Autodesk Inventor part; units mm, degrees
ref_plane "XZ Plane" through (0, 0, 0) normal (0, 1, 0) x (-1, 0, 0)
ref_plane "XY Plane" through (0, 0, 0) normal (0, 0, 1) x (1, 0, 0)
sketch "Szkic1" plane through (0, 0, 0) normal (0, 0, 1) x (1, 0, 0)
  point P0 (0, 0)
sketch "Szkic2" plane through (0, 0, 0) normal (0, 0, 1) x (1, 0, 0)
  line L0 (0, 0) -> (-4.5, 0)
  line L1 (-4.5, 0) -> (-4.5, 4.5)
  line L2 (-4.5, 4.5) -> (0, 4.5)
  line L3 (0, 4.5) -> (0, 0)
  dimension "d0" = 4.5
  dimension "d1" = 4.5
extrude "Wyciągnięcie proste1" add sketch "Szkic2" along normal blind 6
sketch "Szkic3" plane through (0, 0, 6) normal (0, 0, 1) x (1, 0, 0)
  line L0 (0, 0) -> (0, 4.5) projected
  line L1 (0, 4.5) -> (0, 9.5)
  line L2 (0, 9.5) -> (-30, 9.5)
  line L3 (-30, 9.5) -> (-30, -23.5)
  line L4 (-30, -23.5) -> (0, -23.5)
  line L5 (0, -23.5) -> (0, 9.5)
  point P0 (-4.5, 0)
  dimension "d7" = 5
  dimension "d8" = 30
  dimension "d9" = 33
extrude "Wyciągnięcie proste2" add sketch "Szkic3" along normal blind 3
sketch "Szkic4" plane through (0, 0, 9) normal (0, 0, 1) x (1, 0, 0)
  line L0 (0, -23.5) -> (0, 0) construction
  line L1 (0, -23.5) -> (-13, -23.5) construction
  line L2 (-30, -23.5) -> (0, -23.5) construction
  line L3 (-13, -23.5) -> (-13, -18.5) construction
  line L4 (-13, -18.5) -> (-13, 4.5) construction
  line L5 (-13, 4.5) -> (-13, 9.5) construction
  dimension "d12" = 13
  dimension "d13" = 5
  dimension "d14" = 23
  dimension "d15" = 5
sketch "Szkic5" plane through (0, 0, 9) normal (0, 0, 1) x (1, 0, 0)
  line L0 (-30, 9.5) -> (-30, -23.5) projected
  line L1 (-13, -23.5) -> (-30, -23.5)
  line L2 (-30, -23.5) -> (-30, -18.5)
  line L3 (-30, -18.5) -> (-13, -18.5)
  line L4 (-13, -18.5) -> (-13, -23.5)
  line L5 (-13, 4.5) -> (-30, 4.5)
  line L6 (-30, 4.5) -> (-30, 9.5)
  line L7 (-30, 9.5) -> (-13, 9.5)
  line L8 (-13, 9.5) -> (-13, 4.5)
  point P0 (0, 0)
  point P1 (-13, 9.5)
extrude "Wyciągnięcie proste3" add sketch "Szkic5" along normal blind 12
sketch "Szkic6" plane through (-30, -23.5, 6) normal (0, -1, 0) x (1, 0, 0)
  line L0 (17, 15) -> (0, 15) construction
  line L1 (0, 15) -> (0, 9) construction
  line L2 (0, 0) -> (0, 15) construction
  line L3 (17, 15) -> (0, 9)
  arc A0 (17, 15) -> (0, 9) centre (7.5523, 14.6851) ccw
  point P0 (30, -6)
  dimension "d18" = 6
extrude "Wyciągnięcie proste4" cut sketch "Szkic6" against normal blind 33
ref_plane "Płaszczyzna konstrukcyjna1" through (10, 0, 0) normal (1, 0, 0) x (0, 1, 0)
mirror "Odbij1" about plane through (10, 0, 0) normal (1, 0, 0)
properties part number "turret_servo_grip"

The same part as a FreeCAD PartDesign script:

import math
import FreeCAD as App
import Part
import Sketcher
Q = App.Units.Quantity

doc = App.newDocument("Part")
body = doc.addObject("PartDesign::Body", "Body")
body.AllowCompound = True

sketch1 = body.newObject("Sketcher::SketchObject", "Sketch")
sketch1.AttachmentSupport = (doc.getObject("XY_Plane"), [""])
sketch1.MapMode = "FlatFace"
sketch1.addGeometry([
    Part.LineSegment(App.Vector(-4.5, 0, 0), App.Vector(0, 0, 0)),
    Part.LineSegment(App.Vector(0, 0, 0), App.Vector(0, 4.5, 0)),
    Part.LineSegment(App.Vector(0, 4.5, 0), App.Vector(-4.5, 4.5, 0)),
    Part.LineSegment(App.Vector(-4.5, 4.5, 0), App.Vector(-4.5, 0, 0)),
], False)
sketch1.addConstraint([
    Sketcher.Constraint("Coincident", 0, 2, 1, 1),
    Sketcher.Constraint("Coincident", 1, 2, 2, 1),
    Sketcher.Constraint("Coincident", 2, 2, 3, 1),
    Sketcher.Constraint("Coincident", 3, 2, 0, 1),
    Sketcher.Constraint("Horizontal", 0),
    Sketcher.Constraint("Vertical", 1),
    Sketcher.Constraint("Horizontal", 2),
    Sketcher.Constraint("Vertical", 3),
    Sketcher.Constraint("Coincident", 0, 2, -1, 1),
    Sketcher.Constraint("Equal", 2, 1),
    Sketcher.Constraint("DistanceX", 0, 1, 0, 2, Q("4.5 mm")),
])
pad1 = body.newObject("PartDesign::Pad", "Pad")
pad1.Profile = sketch1
pad1.Length = 6

sketch2 = body.newObject("Sketcher::SketchObject", "Sketch001")
sketch2.AttachmentSupport = (doc.getObject("XY_Plane"), [""])
sketch2.MapMode = "FlatFace"
sketch2.AttachmentOffset = App.Placement(App.Vector(0, 0, 6), App.Rotation())
sketch2.addGeometry([
    Part.LineSegment(App.Vector(0, -24, 0), App.Vector(0, 10, 0)),
    Part.LineSegment(App.Vector(0, 10, 0), App.Vector(-30, 10, 0)),
    Part.LineSegment(App.Vector(-30, 10, 0), App.Vector(-30, -24, 0)),
    Part.LineSegment(App.Vector(-30, -24, 0), App.Vector(0, -24, 0)),
], False)
sketch2.addConstraint([
    Sketcher.Constraint("Coincident", 0, 2, 1, 1),
    Sketcher.Constraint("Coincident", 1, 2, 2, 1),
    Sketcher.Constraint("Coincident", 2, 2, 3, 1),
    Sketcher.Constraint("Coincident", 3, 2, 0, 1),
    Sketcher.Constraint("Vertical", 0),
    Sketcher.Constraint("Horizontal", 1),
    Sketcher.Constraint("Vertical", 2),
    Sketcher.Constraint("Horizontal", 3),
    Sketcher.Constraint("PointOnObject", 0, 2, -2),
    Sketcher.Constraint("DistanceX", 1, 2, 1, 1, Q("30 mm")),
    Sketcher.Constraint("DistanceY", 0, 1, 0, 2, Q("33 mm")),
    Sketcher.Constraint("DistanceY", -1, 1, 0, 2, Q("9.5 mm")),
])
pad2 = body.newObject("PartDesign::Pad", "Pad001")
pad2.Profile = sketch2
pad2.Length = 3

sketch3 = body.newObject("Sketcher::SketchObject", "Sketch002")
sketch3.AttachmentSupport = (doc.getObject("XY_Plane"), [""])
sketch3.MapMode = "FlatFace"
sketch3.AttachmentOffset = App.Placement(App.Vector(0, 0, 9), App.Rotation())
sketch3.addGeometry([
    Part.LineSegment(App.Vector(-13, 10, 0), App.Vector(-30, 10, 0)),
    Part.LineSegment(App.Vector(-30, 10, 0), App.Vector(-30, 4, 0)),
    Part.LineSegment(App.Vector(-30, 4, 0), App.Vector(-13, 4, 0)),
    Part.LineSegment(App.Vector(-13, 4, 0), App.Vector(-13, 10, 0)),
    Part.LineSegment(App.Vector(-13, -18, 0), App.Vector(-30, -18, 0)),
    Part.LineSegment(App.Vector(-30, -18, 0), App.Vector(-30, -24, 0)),
    Part.LineSegment(App.Vector(-30, -24, 0), App.Vector(-13, -24, 0)),
    Part.LineSegment(App.Vector(-13, -24, 0), App.Vector(-13, -18, 0)),
], False)
sketch3.addConstraint([
    Sketcher.Constraint("Coincident", 0, 2, 1, 1),
    Sketcher.Constraint("Coincident", 1, 2, 2, 1),
    Sketcher.Constraint("Coincident", 2, 2, 3, 1),
    Sketcher.Constraint("Coincident", 3, 2, 0, 1),
    Sketcher.Constraint("Coincident", 4, 2, 5, 1),
    Sketcher.Constraint("Coincident", 5, 2, 6, 1),
    Sketcher.Constraint("Coincident", 6, 2, 7, 1),
    Sketcher.Constraint("Coincident", 7, 2, 4, 1),
    Sketcher.Constraint("Horizontal", 0),
    Sketcher.Constraint("Vertical", 1),
    Sketcher.Constraint("Horizontal", 2),
    Sketcher.Constraint("Vertical", 3),
    Sketcher.Constraint("Horizontal", 4),
    Sketcher.Constraint("Vertical", 5),
    Sketcher.Constraint("Horizontal", 6),
    Sketcher.Constraint("Vertical", 7),
    Sketcher.Constraint("Vertical", 1, 2, 4, 2),
    Sketcher.Constraint("Vertical", 3, 2, 6, 2),
    Sketcher.Constraint("Equal", 3, 5),
    Sketcher.Constraint("DistanceX", 0, 2, 0, 1, Q("17 mm")),
    Sketcher.Constraint("DistanceY", 1, 2, 1, 1, Q("5 mm")),
    Sketcher.Constraint("DistanceX", 0, 2, -1, 1, Q("30 mm")),
    Sketcher.Constraint("DistanceY", 4, 2, 1, 2, Q("23 mm")),
    Sketcher.Constraint("DistanceY", -1, 1, 0, 2, Q("9.5 mm")),
])
pad3 = body.newObject("PartDesign::Pad", "Pad002")
pad3.Profile = sketch3
pad3.Length = 12

sketch4 = body.newObject("Sketcher::SketchObject", "Sketch003")
sketch4.AttachmentSupport = (doc.getObject("XZ_Plane"), [""])
sketch4.MapMode = "FlatFace"
sketch4.AttachmentOffset = App.Placement(App.Vector(0, 0, 23.5), App.Rotation())
sketch4.addGeometry([
    Part.LineSegment(App.Vector(-30, 15, 0), App.Vector(-13, 21, 0)),
    Part.ArcOfCircle(Part.Circle(App.Vector(-22, 21, 0), App.Vector(0, 0, 1), 9), math.radians(2), math.radians(217)),
], False)
sketch4.addConstraint([
    Sketcher.Constraint("Coincident", 0, 1, 1, 2),
    Sketcher.Constraint("Coincident", 1, 1, 0, 2),
    Sketcher.Constraint("DistanceY", 0, 1, 1, 1, Q("6 mm")),
    Sketcher.Constraint("DistanceX", 0, 1, -1, 1, Q("30 mm")),
    Sketcher.Constraint("DistanceY", -1, 1, 0, 1, Q("15 mm")),
    Sketcher.Constraint("DistanceX", 1, 1, -1, 1, Q("13 mm")),
    Sketcher.Constraint("Radius", 1, Q("9.453 mm")),
])
pocket1 = body.newObject("PartDesign::Pocket", "Pocket")
pocket1.Profile = sketch4
pocket1.Length = 33
doc.recompute()

datumplane = body.newObject("PartDesign::Plane", "DatumPlane")
datumplane.AttachmentSupport = (doc.getObject("YZ_Plane"), [""])
datumplane.MapMode = "FlatFace"
datumplane.AttachmentOffset = App.Placement(App.Vector(0, 0, 10), App.Rotation())
mirrored = body.newObject("PartDesign::Mirrored", "Mirrored")
mirrored.TransformMode = "Transform body"
mirrored.MirrorPlane = (datumplane, [""])
body.Tip = mirrored

doc.recompute()
